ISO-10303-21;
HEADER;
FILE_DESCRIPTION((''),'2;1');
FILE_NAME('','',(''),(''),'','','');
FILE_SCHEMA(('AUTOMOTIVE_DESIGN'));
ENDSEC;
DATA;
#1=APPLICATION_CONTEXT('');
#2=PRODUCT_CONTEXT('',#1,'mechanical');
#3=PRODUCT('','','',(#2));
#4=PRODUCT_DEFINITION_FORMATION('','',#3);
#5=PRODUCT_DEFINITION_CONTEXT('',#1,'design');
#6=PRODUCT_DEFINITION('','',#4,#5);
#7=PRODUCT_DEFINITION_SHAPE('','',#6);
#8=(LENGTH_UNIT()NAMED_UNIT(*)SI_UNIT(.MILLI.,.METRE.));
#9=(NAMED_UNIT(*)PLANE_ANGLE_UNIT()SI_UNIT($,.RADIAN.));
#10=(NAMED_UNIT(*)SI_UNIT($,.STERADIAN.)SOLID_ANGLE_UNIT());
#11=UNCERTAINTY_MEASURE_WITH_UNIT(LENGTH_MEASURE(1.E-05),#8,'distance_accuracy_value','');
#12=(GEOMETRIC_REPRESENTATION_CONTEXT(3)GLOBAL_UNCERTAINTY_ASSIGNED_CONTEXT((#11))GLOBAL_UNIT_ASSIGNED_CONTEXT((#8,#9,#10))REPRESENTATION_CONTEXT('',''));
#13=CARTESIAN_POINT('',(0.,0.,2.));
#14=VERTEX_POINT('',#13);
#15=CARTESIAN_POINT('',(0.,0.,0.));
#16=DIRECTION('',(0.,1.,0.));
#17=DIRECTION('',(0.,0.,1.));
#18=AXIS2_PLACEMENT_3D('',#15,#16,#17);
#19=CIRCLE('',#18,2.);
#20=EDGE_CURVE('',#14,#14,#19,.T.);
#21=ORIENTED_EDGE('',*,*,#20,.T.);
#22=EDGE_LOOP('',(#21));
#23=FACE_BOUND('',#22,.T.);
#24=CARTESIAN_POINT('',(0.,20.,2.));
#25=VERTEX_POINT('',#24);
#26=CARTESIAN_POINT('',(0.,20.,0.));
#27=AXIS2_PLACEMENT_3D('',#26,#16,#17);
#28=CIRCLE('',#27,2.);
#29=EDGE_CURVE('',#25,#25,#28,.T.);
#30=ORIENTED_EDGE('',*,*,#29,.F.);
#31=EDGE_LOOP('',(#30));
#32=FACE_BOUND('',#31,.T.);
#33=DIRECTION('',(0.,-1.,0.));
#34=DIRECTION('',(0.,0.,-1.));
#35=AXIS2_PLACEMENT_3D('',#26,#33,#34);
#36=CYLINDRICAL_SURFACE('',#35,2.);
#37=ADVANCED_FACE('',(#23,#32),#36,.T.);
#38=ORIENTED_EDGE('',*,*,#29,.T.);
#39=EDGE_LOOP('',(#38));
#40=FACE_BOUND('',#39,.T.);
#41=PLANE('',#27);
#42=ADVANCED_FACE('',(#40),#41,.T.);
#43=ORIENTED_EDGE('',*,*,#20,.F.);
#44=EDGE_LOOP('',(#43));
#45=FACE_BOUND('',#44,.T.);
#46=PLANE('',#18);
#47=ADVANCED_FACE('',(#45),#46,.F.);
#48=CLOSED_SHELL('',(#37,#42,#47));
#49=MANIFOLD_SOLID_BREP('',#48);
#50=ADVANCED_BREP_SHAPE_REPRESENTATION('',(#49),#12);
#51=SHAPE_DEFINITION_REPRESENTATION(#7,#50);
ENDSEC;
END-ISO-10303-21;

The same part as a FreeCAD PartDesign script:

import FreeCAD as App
import Part
import Sketcher

doc = App.newDocument("Part")
body = doc.addObject("PartDesign::Body", "Body")

# Sketch on XZ plane
sketch1 = body.newObject("Sketcher::SketchObject", "Sketch")
sketch1.AttachmentSupport = (doc.getObject("XZ_Plane"), [""])
sketch1.MapMode = "FlatFace"
sketch1.addGeometry(Part.Circle(App.Vector(0, 0, 0), App.Vector(0, 0, 1), 2), False)
sketch1.addConstraint([
    Sketcher.Constraint("Coincident", 0, 3, -1, 1),
    Sketcher.Constraint("Diameter", 0, 4.0),
])
pad1 = body.newObject("PartDesign::Pad", "Pad")
pad1.Profile = sketch1
pad1.Length = 20
pad1.Reversed = True

doc.recompute()
